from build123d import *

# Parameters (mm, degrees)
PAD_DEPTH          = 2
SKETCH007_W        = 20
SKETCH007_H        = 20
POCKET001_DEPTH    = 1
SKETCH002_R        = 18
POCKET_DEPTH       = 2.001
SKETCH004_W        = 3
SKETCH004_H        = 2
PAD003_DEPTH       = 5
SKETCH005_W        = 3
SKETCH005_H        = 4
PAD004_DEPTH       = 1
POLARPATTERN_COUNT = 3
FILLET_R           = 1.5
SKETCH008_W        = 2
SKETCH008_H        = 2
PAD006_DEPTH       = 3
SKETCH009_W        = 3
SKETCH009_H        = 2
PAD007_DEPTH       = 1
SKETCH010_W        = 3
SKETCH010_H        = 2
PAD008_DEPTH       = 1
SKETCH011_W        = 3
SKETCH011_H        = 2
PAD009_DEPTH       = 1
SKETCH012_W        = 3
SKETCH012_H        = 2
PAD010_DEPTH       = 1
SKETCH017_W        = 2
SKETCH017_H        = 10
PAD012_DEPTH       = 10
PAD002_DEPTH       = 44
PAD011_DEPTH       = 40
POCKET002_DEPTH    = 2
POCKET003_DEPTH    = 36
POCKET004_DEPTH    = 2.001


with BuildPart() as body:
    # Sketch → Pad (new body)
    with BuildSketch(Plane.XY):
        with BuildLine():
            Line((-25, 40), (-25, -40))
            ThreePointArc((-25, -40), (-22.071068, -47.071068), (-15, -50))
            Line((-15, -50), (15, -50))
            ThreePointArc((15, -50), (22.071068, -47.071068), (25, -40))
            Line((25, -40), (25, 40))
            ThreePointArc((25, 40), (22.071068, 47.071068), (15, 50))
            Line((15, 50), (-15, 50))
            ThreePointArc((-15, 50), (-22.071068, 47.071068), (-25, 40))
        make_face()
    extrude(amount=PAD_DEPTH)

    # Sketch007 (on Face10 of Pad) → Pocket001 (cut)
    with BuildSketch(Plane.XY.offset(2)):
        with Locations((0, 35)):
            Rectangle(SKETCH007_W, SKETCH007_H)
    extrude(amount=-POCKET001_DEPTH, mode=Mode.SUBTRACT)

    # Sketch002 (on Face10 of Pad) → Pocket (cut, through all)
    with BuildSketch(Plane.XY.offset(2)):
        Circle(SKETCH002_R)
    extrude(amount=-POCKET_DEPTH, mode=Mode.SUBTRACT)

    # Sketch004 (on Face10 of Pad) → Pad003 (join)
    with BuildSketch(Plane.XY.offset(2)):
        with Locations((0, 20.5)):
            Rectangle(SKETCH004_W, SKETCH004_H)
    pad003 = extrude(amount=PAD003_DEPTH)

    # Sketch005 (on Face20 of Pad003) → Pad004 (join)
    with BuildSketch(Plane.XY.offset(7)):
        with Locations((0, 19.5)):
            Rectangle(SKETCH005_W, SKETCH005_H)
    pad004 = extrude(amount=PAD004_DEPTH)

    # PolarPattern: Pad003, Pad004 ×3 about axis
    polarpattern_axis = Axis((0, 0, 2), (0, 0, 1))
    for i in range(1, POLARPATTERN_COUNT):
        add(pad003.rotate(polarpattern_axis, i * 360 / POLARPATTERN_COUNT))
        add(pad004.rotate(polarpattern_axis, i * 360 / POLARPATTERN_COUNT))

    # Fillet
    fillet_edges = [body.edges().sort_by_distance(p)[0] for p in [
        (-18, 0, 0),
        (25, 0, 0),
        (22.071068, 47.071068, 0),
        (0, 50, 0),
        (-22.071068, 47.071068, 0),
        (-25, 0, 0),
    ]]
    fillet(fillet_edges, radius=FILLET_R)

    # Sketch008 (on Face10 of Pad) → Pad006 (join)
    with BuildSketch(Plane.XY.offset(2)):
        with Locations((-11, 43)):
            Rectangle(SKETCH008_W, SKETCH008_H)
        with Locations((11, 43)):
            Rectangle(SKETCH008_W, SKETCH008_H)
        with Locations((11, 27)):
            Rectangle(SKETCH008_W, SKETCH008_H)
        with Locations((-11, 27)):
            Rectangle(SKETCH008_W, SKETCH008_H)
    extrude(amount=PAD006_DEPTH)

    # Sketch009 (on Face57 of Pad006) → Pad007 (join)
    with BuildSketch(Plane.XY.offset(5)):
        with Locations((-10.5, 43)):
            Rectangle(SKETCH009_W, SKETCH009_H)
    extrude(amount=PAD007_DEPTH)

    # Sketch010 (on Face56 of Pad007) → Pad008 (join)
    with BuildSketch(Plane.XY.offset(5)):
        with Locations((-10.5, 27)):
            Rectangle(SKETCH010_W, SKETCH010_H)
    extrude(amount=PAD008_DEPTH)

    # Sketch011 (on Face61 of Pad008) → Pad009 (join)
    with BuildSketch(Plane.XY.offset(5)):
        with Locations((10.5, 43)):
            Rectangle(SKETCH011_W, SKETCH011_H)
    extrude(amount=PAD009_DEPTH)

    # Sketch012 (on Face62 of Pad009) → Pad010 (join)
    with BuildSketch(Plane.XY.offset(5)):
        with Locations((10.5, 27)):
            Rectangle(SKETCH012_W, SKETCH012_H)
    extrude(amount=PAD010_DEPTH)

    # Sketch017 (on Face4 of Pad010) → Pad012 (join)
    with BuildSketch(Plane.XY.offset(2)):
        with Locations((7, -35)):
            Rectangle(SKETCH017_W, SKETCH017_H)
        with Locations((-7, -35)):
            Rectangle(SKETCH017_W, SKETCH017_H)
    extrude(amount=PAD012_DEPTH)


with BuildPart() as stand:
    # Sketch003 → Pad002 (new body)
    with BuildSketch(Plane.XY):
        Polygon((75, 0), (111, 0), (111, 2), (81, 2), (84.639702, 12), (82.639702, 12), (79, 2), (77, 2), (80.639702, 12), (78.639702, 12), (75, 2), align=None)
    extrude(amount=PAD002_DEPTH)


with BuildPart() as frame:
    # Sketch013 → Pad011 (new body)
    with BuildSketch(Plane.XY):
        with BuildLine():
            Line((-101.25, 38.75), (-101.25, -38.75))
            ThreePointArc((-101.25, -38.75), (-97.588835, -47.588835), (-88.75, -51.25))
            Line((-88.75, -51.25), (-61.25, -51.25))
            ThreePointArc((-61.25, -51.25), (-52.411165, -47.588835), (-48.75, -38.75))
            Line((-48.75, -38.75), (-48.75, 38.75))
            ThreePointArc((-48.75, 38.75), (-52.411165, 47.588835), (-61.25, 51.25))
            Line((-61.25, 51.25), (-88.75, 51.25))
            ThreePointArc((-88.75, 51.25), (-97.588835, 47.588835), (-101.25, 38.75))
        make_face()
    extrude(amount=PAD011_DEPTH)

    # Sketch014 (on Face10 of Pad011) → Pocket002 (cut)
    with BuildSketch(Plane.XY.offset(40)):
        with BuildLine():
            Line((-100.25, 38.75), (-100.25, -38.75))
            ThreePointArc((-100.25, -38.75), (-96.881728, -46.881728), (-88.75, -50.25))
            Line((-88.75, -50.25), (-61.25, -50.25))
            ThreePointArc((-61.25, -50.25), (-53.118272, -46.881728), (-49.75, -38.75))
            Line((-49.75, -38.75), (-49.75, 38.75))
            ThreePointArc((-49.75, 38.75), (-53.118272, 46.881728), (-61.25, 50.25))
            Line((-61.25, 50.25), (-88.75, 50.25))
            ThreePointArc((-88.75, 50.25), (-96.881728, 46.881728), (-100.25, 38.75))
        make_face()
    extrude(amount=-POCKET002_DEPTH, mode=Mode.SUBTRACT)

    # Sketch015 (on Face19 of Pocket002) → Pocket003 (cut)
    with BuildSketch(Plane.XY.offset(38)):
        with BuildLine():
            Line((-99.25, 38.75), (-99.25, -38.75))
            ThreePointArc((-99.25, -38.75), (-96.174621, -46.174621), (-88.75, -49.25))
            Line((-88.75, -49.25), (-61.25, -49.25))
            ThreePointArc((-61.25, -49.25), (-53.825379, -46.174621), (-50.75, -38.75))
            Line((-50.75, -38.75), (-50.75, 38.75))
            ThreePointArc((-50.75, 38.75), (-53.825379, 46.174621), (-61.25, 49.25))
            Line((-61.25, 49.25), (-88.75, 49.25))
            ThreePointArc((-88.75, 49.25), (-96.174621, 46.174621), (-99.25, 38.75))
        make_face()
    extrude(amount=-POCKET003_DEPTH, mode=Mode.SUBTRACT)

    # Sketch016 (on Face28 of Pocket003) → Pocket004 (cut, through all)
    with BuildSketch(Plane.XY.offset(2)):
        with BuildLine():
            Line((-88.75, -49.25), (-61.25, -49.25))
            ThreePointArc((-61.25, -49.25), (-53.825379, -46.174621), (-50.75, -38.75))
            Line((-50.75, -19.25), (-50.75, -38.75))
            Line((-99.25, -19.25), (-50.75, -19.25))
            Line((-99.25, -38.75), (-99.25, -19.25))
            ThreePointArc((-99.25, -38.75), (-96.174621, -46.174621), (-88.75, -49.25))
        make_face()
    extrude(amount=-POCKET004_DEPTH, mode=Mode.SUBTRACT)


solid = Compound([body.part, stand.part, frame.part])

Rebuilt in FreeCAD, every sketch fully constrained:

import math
import FreeCAD as App
import Part
import Sketcher
Q = App.Units.Quantity


def edges_at(feature, points):
    """Names of the edges that pass closest to the given points."""
    edges = feature.Shape.Edges
    near = lambda p: min(range(len(edges)), key=lambda i: edges[i].distToShape(Part.Vertex(*p))[0])
    return sorted({f"Edge{near(p) + 1}" for p in points})

doc = App.newDocument("Part")
body = doc.addObject("PartDesign::Body", "Body")

sketch1 = body.newObject("Sketcher::SketchObject", "Sketch")
sketch1.AttachmentSupport = (doc.getObject("XY_Plane"), [""])
sketch1.MapMode = "FlatFace"
sketch1.addGeometry(Part.LineSegment(App.Vector(-25, 40, 0), App.Vector(-25, -40, 0)), False)
sketch1.addGeometry(Part.ArcOfCircle(Part.Circle(App.Vector(-15, -40, 0), App.Vector(0, 0, 1), 10), math.radians(180), math.radians(270)), False)
sketch1.addGeometry(Part.LineSegment(App.Vector(-15, -50, 0), App.Vector(15, -50, 0)), False)
sketch1.addGeometry(Part.ArcOfCircle(Part.Circle(App.Vector(15, -40, 0), App.Vector(0, 0, 1), 10), math.radians(-90), math.radians(0)), False)
sketch1.addGeometry(Part.LineSegment(App.Vector(25, -40, 0), App.Vector(25, 40, 0)), False)
sketch1.addGeometry(Part.ArcOfCircle(Part.Circle(App.Vector(15, 40, 0), App.Vector(0, 0, 1), 10), math.radians(0), math.radians(90)), False)
sketch1.addGeometry(Part.LineSegment(App.Vector(15, 50, 0), App.Vector(-15, 50, 0)), False)
sketch1.addGeometry(Part.ArcOfCircle(Part.Circle(App.Vector(-15, 40, 0), App.Vector(0, 0, 1), 10), math.radians(90), math.radians(180)), False)
sketch1.addConstraint(Sketcher.Constraint("Tangent", 0, 2, 1, 1))
sketch1.addConstraint(Sketcher.Constraint("Tangent", 1, 2, 2, 1))
sketch1.addConstraint(Sketcher.Constraint("Tangent", 2, 2, 3, 1))
sketch1.addConstraint(Sketcher.Constraint("Tangent", 3, 2, 4, 1))
sketch1.addConstraint(Sketcher.Constraint("Tangent", 4, 2, 5, 1))
sketch1.addConstraint(Sketcher.Constraint("Tangent", 5, 2, 6, 1))
sketch1.addConstraint(Sketcher.Constraint("Tangent", 6, 2, 7, 1))
sketch1.addConstraint(Sketcher.Constraint("Tangent", 7, 2, 0, 1))
sketch1.addConstraint(Sketcher.Constraint("Vertical", 0))
sketch1.addConstraint(Sketcher.Constraint("Horizontal", 2))
sketch1.addConstraint(Sketcher.Constraint("Vertical", 4))
sketch1.addConstraint(Sketcher.Constraint("Horizontal", 6))
sketch1.addConstraint(Sketcher.Constraint("Equal", 1, 3))
sketch1.addConstraint(Sketcher.Constraint("Equal", 3, 5))
sketch1.addConstraint(Sketcher.Constraint("Equal", 5, 7))
sketch1.addConstraint(Sketcher.Constraint("Symmetric", 1, 3, 5, 3, -1, 1))
sketch1.addConstraint(Sketcher.Constraint("Radius", 1, Q("9.999999 mm")))
sketch1.addConstraint(Sketcher.Constraint("DistanceX", 2, 1, 2, 2, Q("30 mm")))
sketch1.addConstraint(Sketcher.Constraint("DistanceY", 0, 2, 0, 1, Q("80 mm")))
pad1 = body.newObject("PartDesign::Pad", "Pad")
pad1.Profile = sketch1
pad1.Length = 2

sketch2 = body.newObject("Sketcher::SketchObject", "Sketch001")
sketch2.AttachmentSupport = (doc.getObject("XY_Plane"), [""])
sketch2.MapMode = "FlatFace"
sketch2.AttachmentOffset = App.Placement(App.Vector(0, 0, 2), App.Rotation())
sketch2.addGeometry(Part.LineSegment(App.Vector(-10, 45, 0), App.Vector(-10, 25, 0)), False)
sketch2.addGeometry(Part.LineSegment(App.Vector(-10, 25, 0), App.Vector(10, 25, 0)), False)
sketch2.addGeometry(Part.LineSegment(App.Vector(10, 25, 0), App.Vector(10, 45, 0)), False)
sketch2.addGeometry(Part.LineSegment(App.Vector(10, 45, 0), App.Vector(-10, 45, 0)), False)
sketch2.addConstraint(Sketcher.Constraint("Coincident", 0, 2, 1, 1))
sketch2.addConstraint(Sketcher.Constraint("Coincident", 1, 2, 2, 1))
sketch2.addConstraint(Sketcher.Constraint("Coincident", 2, 2, 3, 1))
sketch2.addConstraint(Sketcher.Constraint("Coincident", 3, 2, 0, 1))
sketch2.addConstraint(Sketcher.Constraint("Vertical", 0))
sketch2.addConstraint(Sketcher.Constraint("Horizontal", 1))
sketch2.addConstraint(Sketcher.Constraint("Vertical", 2))
sketch2.addConstraint(Sketcher.Constraint("Horizontal", 3))
sketch2.addConstraint(Sketcher.Constraint("Equal", 3, 0))
sketch2.addConstraint(Sketcher.Constraint("DistanceX", 1, 1, 1, 2, Q("20 mm")))
sketch2.addConstraint(Sketcher.Constraint("DistanceX", 0, 2, -1, 1, Q("10 mm")))
sketch2.addConstraint(Sketcher.Constraint("DistanceY", -1, 1, 0, 2, Q("25 mm")))
pocket1 = body.newObject("PartDesign::Pocket", "Pocket")
pocket1.Profile = sketch2
pocket1.Length = 1

sketch3 = body.newObject("Sketcher::SketchObject", "Sketch002")
sketch3.AttachmentSupport = (doc.getObject("XY_Plane"), [""])
sketch3.MapMode = "FlatFace"
sketch3.AttachmentOffset = App.Placement(App.Vector(0, 0, 2), App.Rotation())
sketch3.addGeometry(Part.Circle(App.Vector(0, 0, 0), App.Vector(0, 0, 1), 18), False)
sketch3.addConstraint(Sketcher.Constraint("Coincident", 0, 3, -1, 1))
sketch3.addConstraint(Sketcher.Constraint("Diameter", 0, Q("36 mm")))
pocket2 = body.newObject("PartDesign::Pocket", "Pocket001")
pocket2.Profile = sketch3
pocket2.Type = "ThroughAll"

sketch4 = body.newObject("Sketcher::SketchObject", "Sketch003")
sketch4.AttachmentSupport = (doc.getObject("XY_Plane"), [""])
sketch4.MapMode = "FlatFace"
sketch4.AttachmentOffset = App.Placement(App.Vector(0, 0, 2), App.Rotation())
sketch4.addGeometry(Part.LineSegment(App.Vector(-1.5, 21.5, 0), App.Vector(-1.5, 19.5, 0)), False)
sketch4.addGeometry(Part.LineSegment(App.Vector(-1.5, 19.5, 0), App.Vector(1.5, 19.5, 0)), False)
sketch4.addGeometry(Part.LineSegment(App.Vector(1.5, 19.5, 0), App.Vector(1.5, 21.5, 0)), False)
sketch4.addGeometry(Part.LineSegment(App.Vector(1.5, 21.5, 0), App.Vector(-1.5, 21.5, 0)), False)
sketch4.addConstraint(Sketcher.Constraint("Coincident", 0, 2, 1, 1))
sketch4.addConstraint(Sketcher.Constraint("Coincident", 1, 2, 2, 1))
sketch4.addConstraint(Sketcher.Constraint("Coincident", 2, 2, 3, 1))
sketch4.addConstraint(Sketcher.Constraint("Coincident", 3, 2, 0, 1))
sketch4.addConstraint(Sketcher.Constraint("Vertical", 0))
sketch4.addConstraint(Sketcher.Constraint("Horizontal", 1))
sketch4.addConstraint(Sketcher.Constraint("Vertical", 2))
sketch4.addConstraint(Sketcher.Constraint("Horizontal", 3))
sketch4.addConstraint(Sketcher.Constraint("DistanceX", 1, 1, 1, 2, Q("3 mm")))
sketch4.addConstraint(Sketcher.Constraint("DistanceY", 0, 2, 0, 1, Q("2 mm")))
sketch4.addConstraint(Sketcher.Constraint("DistanceX", 0, 2, -1, 1, Q("1.5 mm")))
sketch4.addConstraint(Sketcher.Constraint("DistanceY", -1, 1, 0, 2, Q("19.5 mm")))
pad2 = body.newObject("PartDesign::Pad", "Pad001")
pad2.Profile = sketch4
pad2.Length = 5

sketch5 = body.newObject("Sketcher::SketchObject", "Sketch004")
sketch5.AttachmentSupport = (doc.getObject("XY_Plane"), [""])
sketch5.MapMode = "FlatFace"
sketch5.AttachmentOffset = App.Placement(App.Vector(0, 0, 7), App.Rotation())
sketch5.addGeometry(Part.LineSegment(App.Vector(-1.5, 21.5, 0), App.Vector(-1.5, 17.5, 0)), False)
sketch5.addGeometry(Part.LineSegment(App.Vector(-1.5, 17.5, 0), App.Vector(1.5, 17.5, 0)), False)
sketch5.addGeometry(Part.LineSegment(App.Vector(1.5, 17.5, 0), App.Vector(1.5, 21.5, 0)), False)
sketch5.addGeometry(Part.LineSegment(App.Vector(1.5, 21.5, 0), App.Vector(-1.5, 21.5, 0)), False)
sketch5.addConstraint(Sketcher.Constraint("Coincident", 0, 2, 1, 1))
sketch5.addConstraint(Sketcher.Constraint("Coincident", 1, 2, 2, 1))
sketch5.addConstraint(Sketcher.Constraint("Coincident", 2, 2, 3, 1))
sketch5.addConstraint(Sketcher.Constraint("Coincident", 3, 2, 0, 1))
sketch5.addConstraint(Sketcher.Constraint("Vertical", 0))
sketch5.addConstraint(Sketcher.Constraint("Horizontal", 1))
sketch5.addConstraint(Sketcher.Constraint("Vertical", 2))
sketch5.addConstraint(Sketcher.Constraint("Horizontal", 3))
sketch5.addConstraint(Sketcher.Constraint("DistanceX", 1, 1, 1, 2, Q("3 mm")))
sketch5.addConstraint(Sketcher.Constraint("DistanceY", 0, 2, 0, 1, Q("4 mm")))
sketch5.addConstraint(Sketcher.Constraint("DistanceX", 0, 2, -1, 1, Q("1.5 mm")))
sketch5.addConstraint(Sketcher.Constraint("DistanceY", -1, 1, 0, 2, Q("17.5 mm")))
pad3 = body.newObject("PartDesign::Pad", "Pad002")
pad3.Profile = sketch5
pad3.Length = 1
doc.recompute()

polarpattern = body.newObject("PartDesign::PolarPattern", "PolarPattern")
polarpattern.Originals = [pad2, pad3]
polarpattern.Axis = (doc.getObject("Z_Axis"), [""])
polarpattern.Angle = 360
polarpattern.Occurrences = 3
body.Tip = polarpattern
doc.recompute()

fillet = body.newObject("PartDesign::Fillet", "Fillet")
fillet.Base = (polarpattern, edges_at(polarpattern, [
    (-18, 0, 0),
    (25, 0, 0),
    (22.071, 47.071, 0),
    (0, 50, 0),
    (-22.071, 47.071, 0),
    (-25, 0, 0),
]))
fillet.Radius = 1.5

sketch6 = body.newObject("Sketcher::SketchObject", "Sketch005")
sketch6.AttachmentSupport = (doc.getObject("XY_Plane"), [""])
sketch6.MapMode = "FlatFace"
sketch6.AttachmentOffset = App.Placement(App.Vector(0, 0, 2), App.Rotation())
sketch6.addGeometry(Part.LineSegment(App.Vector(-12, 44, 0), App.Vector(-12, 42, 0)), False)
sketch6.addGeometry(Part.LineSegment(App.Vector(-12, 42, 0), App.Vector(-10, 42, 0)), False)
sketch6.addGeometry(Part.LineSegment(App.Vector(-10, 42, 0), App.Vector(-10, 44, 0)), False)
sketch6.addGeometry(Part.LineSegment(App.Vector(-10, 44, 0), App.Vector(-12, 44, 0)), False)
sketch6.addGeometry(Part.LineSegment(App.Vector(10, 44, 0), App.Vector(10, 42, 0)), False)
sketch6.addGeometry(Part.LineSegment(App.Vector(10, 42, 0), App.Vector(12, 42, 0)), False)
sketch6.addGeometry(Part.LineSegment(App.Vector(12, 42, 0), App.Vector(12, 44, 0)), False)
sketch6.addGeometry(Part.LineSegment(App.Vector(12, 44, 0), App.Vector(10, 44, 0)), False)
sketch6.addGeometry(Part.LineSegment(App.Vector(10, 28, 0), App.Vector(10, 26, 0)), False)
sketch6.addGeometry(Part.LineSegment(App.Vector(10, 26, 0), App.Vector(12, 26, 0)), False)
sketch6.addGeometry(Part.LineSegment(App.Vector(12, 26, 0), App.Vector(12, 28, 0)), False)
sketch6.addGeometry(Part.LineSegment(App.Vector(12, 28, 0), App.Vector(10, 28, 0)), False)
sketch6.addGeometry(Part.LineSegment(App.Vector(-12, 28, 0), App.Vector(-12, 26, 0)), False)
sketch6.addGeometry(Part.LineSegment(App.Vector(-12, 26, 0), App.Vector(-10, 26, 0)), False)
sketch6.addGeometry(Part.LineSegment(App.Vector(-10, 26, 0), App.Vector(-10, 28, 0)), False)
sketch6.addGeometry(Part.LineSegment(App.Vector(-10, 28, 0), App.Vector(-12, 28, 0)), False)
sketch6.addConstraint(Sketcher.Constraint("Coincident", 0, 2, 1, 1))
sketch6.addConstraint(Sketcher.Constraint("Coincident", 1, 2, 2, 1))
sketch6.addConstraint(Sketcher.Constraint("Coincident", 2, 2, 3, 1))
sketch6.addConstraint(Sketcher.Constraint("Coincident", 3, 2, 0, 1))
sketch6.addConstraint(Sketcher.Constraint("Coincident", 4, 2, 5, 1))
sketch6.addConstraint(Sketcher.Constraint("Coincident", 5, 2, 6, 1))
sketch6.addConstraint(Sketcher.Constraint("Coincident", 6, 2, 7, 1))
sketch6.addConstraint(Sketcher.Constraint("Coincident", 7, 2, 4, 1))
sketch6.addConstraint(Sketcher.Constraint("Coincident", 8, 2, 9, 1))
sketch6.addConstraint(Sketcher.Constraint("Coincident", 9, 2, 10, 1))
sketch6.addConstraint(Sketcher.Constraint("Coincident", 10, 2, 11, 1))
sketch6.addConstraint(Sketcher.Constraint("Coincident", 11, 2, 8, 1))
sketch6.addConstraint(Sketcher.Constraint("Coincident", 12, 2, 13, 1))
sketch6.addConstraint(Sketcher.Constraint("Coincident", 13, 2, 14, 1))
sketch6.addConstraint(Sketcher.Constraint("Coincident", 14, 2, 15, 1))
sketch6.addConstraint(Sketcher.Constraint("Coincident", 15, 2, 12, 1))
sketch6.addConstraint(Sketcher.Constraint("Vertical", 0))
sketch6.addConstraint(Sketcher.Constraint("Horizontal", 1))
sketch6.addConstraint(Sketcher.Constraint("Vertical", 2))
sketch6.addConstraint(Sketcher.Constraint("Horizontal", 3))
sketch6.addConstraint(Sketcher.Constraint("Vertical", 4))
sketch6.addConstraint(Sketcher.Constraint("Horizontal", 5))
sketch6.addConstraint(Sketcher.Constraint("Vertical", 6))
sketch6.addConstraint(Sketcher.Constraint("Horizontal", 7))
sketch6.addConstraint(Sketcher.Constraint("Vertical", 8))
sketch6.addConstraint(Sketcher.Constraint("Horizontal", 9))
sketch6.addConstraint(Sketcher.Constraint("Vertical", 10))
sketch6.addConstraint(Sketcher.Constraint("Horizontal", 11))
sketch6.addConstraint(Sketcher.Constraint("Vertical", 12))
sketch6.addConstraint(Sketcher.Constraint("Horizontal", 13))
sketch6.addConstraint(Sketcher.Constraint("Vertical", 14))
sketch6.addConstraint(Sketcher.Constraint("Horizontal", 15))
sketch6.addConstraint(Sketcher.Constraint("Symmetric", 1, 2, 4, 2, -2))
sketch6.addConstraint(Sketcher.Constraint("Symmetric", 3, 2, 6, 2, -2))
sketch6.addConstraint(Sketcher.Constraint("Symmetric", 9, 2, 12, 2, -2))
sketch6.addConstraint(Sketcher.Constraint("Symmetric", 11, 2, 14, 2, -2))
sketch6.addConstraint(Sketcher.Constraint("Vertical", 7, 2, 8, 2))
sketch6.addConstraint(Sketcher.Constraint("Vertical", 6, 2, 9, 2))
sketch6.addConstraint(Sketcher.Constraint("Equal", 15, 0))
sketch6.addConstraint(Sketcher.Constraint("Equal", 6, 8))
sketch6.addConstraint(Sketcher.Constraint("DistanceX", 1, 1, 1, 2, Q("2 mm")))
sketch6.addConstraint(Sketcher.Constraint("DistanceX", 0, 2, -1, 1, Q("12 mm")))
sketch6.addConstraint(Sketcher.Constraint("DistanceY", -1, 1, 0, 2, Q("42 mm")))
sketch6.addConstraint(Sketcher.Constraint("DistanceY", -1, 1, 8, 2, Q("26 mm")))
pad4 = body.newObject("PartDesign::Pad", "Pad003")
pad4.Profile = sketch6
pad4.Length = 3

sketch7 = body.newObject("Sketcher::SketchObject", "Sketch006")
sketch7.AttachmentSupport = (doc.getObject("XY_Plane"), [""])
sketch7.MapMode = "FlatFace"
sketch7.AttachmentOffset = App.Placement(App.Vector(0, 0, 5), App.Rotation())
sketch7.addGeometry(Part.LineSegment(App.Vector(-12, 44, 0), App.Vector(-12, 42, 0)), False)
sketch7.addGeometry(Part.LineSegment(App.Vector(-12, 42, 0), App.Vector(-9, 42, 0)), False)
sketch7.addGeometry(Part.LineSegment(App.Vector(-9, 42, 0), App.Vector(-9, 44, 0)), False)
sketch7.addGeometry(Part.LineSegment(App.Vector(-9, 44, 0), App.Vector(-12, 44, 0)), False)
sketch7.addConstraint(Sketcher.Constraint("Coincident", 0, 2, 1, 1))
sketch7.addConstraint(Sketcher.Constraint("Coincident", 1, 2, 2, 1))
sketch7.addConstraint(Sketcher.Constraint("Coincident", 2, 2, 3, 1))
sketch7.addConstraint(Sketcher.Constraint("Coincident", 3, 2, 0, 1))
sketch7.addConstraint(Sketcher.Constraint("Vertical", 0))
sketch7.addConstraint(Sketcher.Constraint("Horizontal", 1))
sketch7.addConstraint(Sketcher.Constraint("Vertical", 2))
sketch7.addConstraint(Sketcher.Constraint("Horizontal", 3))
sketch7.addConstraint(Sketcher.Constraint("DistanceX", 1, 1, 1, 2, Q("3 mm")))
sketch7.addConstraint(Sketcher.Constraint("DistanceY", 0, 2, 0, 1, Q("2 mm")))
sketch7.addConstraint(Sketcher.Constraint("DistanceX", 0, 2, -1, 1, Q("12 mm")))
sketch7.addConstraint(Sketcher.Constraint("DistanceY", -1, 1, 0, 2, Q("42 mm")))
pad5 = body.newObject("PartDesign::Pad", "Pad004")
pad5.Profile = sketch7
pad5.Length = 1

sketch8 = body.newObject("Sketcher::SketchObject", "Sketch007")
sketch8.AttachmentSupport = (doc.getObject("XY_Plane"), [""])
sketch8.MapMode = "FlatFace"
sketch8.AttachmentOffset = App.Placement(App.Vector(0, 0, 5), App.Rotation())
sketch8.addGeometry(Part.LineSegment(App.Vector(-12, 28, 0), App.Vector(-12, 26, 0)), False)
sketch8.addGeometry(Part.LineSegment(App.Vector(-12, 26, 0), App.Vector(-9, 26, 0)), False)
sketch8.addGeometry(Part.LineSegment(App.Vector(-9, 26, 0), App.Vector(-9, 28, 0)), False)
sketch8.addGeometry(Part.LineSegment(App.Vector(-9, 28, 0), App.Vector(-12, 28, 0)), False)
sketch8.addConstraint(Sketcher.Constraint("Coincident", 0, 2, 1, 1))
sketch8.addConstraint(Sketcher.Constraint("Coincident", 1, 2, 2, 1))
sketch8.addConstraint(Sketcher.Constraint("Coincident", 2, 2, 3, 1))
sketch8.addConstraint(Sketcher.Constraint("Coincident", 3, 2, 0, 1))
sketch8.addConstraint(Sketcher.Constraint("Vertical", 0))
sketch8.addConstraint(Sketcher.Constraint("Horizontal", 1))
sketch8.addConstraint(Sketcher.Constraint("Vertical", 2))
sketch8.addConstraint(Sketcher.Constraint("Horizontal", 3))
sketch8.addConstraint(Sketcher.Constraint("DistanceX", 1, 1, 1, 2, Q("3 mm")))
sketch8.addConstraint(Sketcher.Constraint("DistanceY", 0, 2, 0, 1, Q("2 mm")))
sketch8.addConstraint(Sketcher.Constraint("DistanceX", 0, 2, -1, 1, Q("12 mm")))
sketch8.addConstraint(Sketcher.Constraint("DistanceY", -1, 1, 0, 2, Q("26 mm")))
pad6 = body.newObject("PartDesign::Pad", "Pad005")
pad6.Profile = sketch8
pad6.Length = 1

sketch9 = body.newObject("Sketcher::SketchObject", "Sketch008")
sketch9.AttachmentSupport = (doc.getObject("XY_Plane"), [""])
sketch9.MapMode = "FlatFace"
sketch9.AttachmentOffset = App.Placement(App.Vector(0, 0, 5), App.Rotation())
sketch9.addGeometry(Part.LineSegment(App.Vector(9, 44, 0), App.Vector(9, 42, 0)), False)
sketch9.addGeometry(Part.LineSegment(App.Vector(9, 42, 0), App.Vector(12, 42, 0)), False)
sketch9.addGeometry(Part.LineSegment(App.Vector(12, 42, 0), App.Vector(12, 44, 0)), False)
sketch9.addGeometry(Part.LineSegment(App.Vector(12, 44, 0), App.Vector(9, 44, 0)), False)
sketch9.addConstraint(Sketcher.Constraint("Coincident", 0, 2, 1, 1))
sketch9.addConstraint(Sketcher.Constraint("Coincident", 1, 2, 2, 1))
sketch9.addConstraint(Sketcher.Constraint("Coincident", 2, 2, 3, 1))
sketch9.addConstraint(Sketcher.Constraint("Coincident", 3, 2, 0, 1))
sketch9.addConstraint(Sketcher.Constraint("Vertical", 0))
sketch9.addConstraint(Sketcher.Constraint("Horizontal", 1))
sketch9.addConstraint(Sketcher.Constraint("Vertical", 2))
sketch9.addConstraint(Sketcher.Constraint("Horizontal", 3))
sketch9.addConstraint(Sketcher.Constraint("DistanceX", 1, 1, 1, 2, Q("3 mm")))
sketch9.addConstraint(Sketcher.Constraint("DistanceY", 0, 2, 0, 1, Q("2 mm")))
sketch9.addConstraint(Sketcher.Constraint("DistanceX", -1, 1, 0, 2, Q("9 mm")))
sketch9.addConstraint(Sketcher.Constraint("DistanceY", -1, 1, 0, 2, Q("42 mm")))
pad7 = body.newObject("PartDesign::Pad", "Pad006")
pad7.Profile = sketch9
pad7.Length = 1

sketch10 = body.newObject("Sketcher::SketchObject", "Sketch009")
sketch10.AttachmentSupport = (doc.getObject("XY_Plane"), [""])
sketch10.MapMode = "FlatFace"
sketch10.AttachmentOffset = App.Placement(App.Vector(0, 0, 5), App.Rotation())
sketch10.addGeometry(Part.LineSegment(App.Vector(9, 28, 0), App.Vector(9, 26, 0)), False)
sketch10.addGeometry(Part.LineSegment(App.Vector(9, 26, 0), App.Vector(12, 26, 0)), False)
sketch10.addGeometry(Part.LineSegment(App.Vector(12, 26, 0), App.Vector(12, 28, 0)), False)
sketch10.addGeometry(Part.LineSegment(App.Vector(12, 28, 0), App.Vector(9, 28, 0)), False)
sketch10.addConstraint(Sketcher.Constraint("Coincident", 0, 2, 1, 1))
sketch10.addConstraint(Sketcher.Constraint("Coincident", 1, 2, 2, 1))
sketch10.addConstraint(Sketcher.Constraint("Coincident", 2, 2, 3, 1))
sketch10.addConstraint(Sketcher.Constraint("Coincident", 3, 2, 0, 1))
sketch10.addConstraint(Sketcher.Constraint("Vertical", 0))
sketch10.addConstraint(Sketcher.Constraint("Horizontal", 1))
sketch10.addConstraint(Sketcher.Constraint("Vertical", 2))
sketch10.addConstraint(Sketcher.Constraint("Horizontal", 3))
sketch10.addConstraint(Sketcher.Constraint("DistanceX", 1, 1, 1, 2, Q("3 mm")))
sketch10.addConstraint(Sketcher.Constraint("DistanceY", 0, 2, 0, 1, Q("2 mm")))
sketch10.addConstraint(Sketcher.Constraint("DistanceX", -1, 1, 0, 2, Q("9 mm")))
sketch10.addConstraint(Sketcher.Constraint("DistanceY", -1, 1, 0, 2, Q("26 mm")))
pad8 = body.newObject("PartDesign::Pad", "Pad007")
pad8.Profile = sketch10
pad8.Length = 1

sketch11 = body.newObject("Sketcher::SketchObject", "Sketch010")
sketch11.AttachmentSupport = (doc.getObject("XY_Plane"), [""])
sketch11.MapMode = "FlatFace"
sketch11.AttachmentOffset = App.Placement(App.Vector(0, 0, 2), App.Rotation())
sketch11.addGeometry(Part.LineSegment(App.Vector(6, -30, 0), App.Vector(6, -40, 0)), False)
sketch11.addGeometry(Part.LineSegment(App.Vector(6, -40, 0), App.Vector(8, -40, 0)), False)
sketch11.addGeometry(Part.LineSegment(App.Vector(8, -40, 0), App.Vector(8, -30, 0)), False)
sketch11.addGeometry(Part.LineSegment(App.Vector(8, -30, 0), App.Vector(6, -30, 0)), False)
sketch11.addGeometry(Part.LineSegment(App.Vector(-8, -30, 0), App.Vector(-8, -40, 0)), False)
sketch11.addGeometry(Part.LineSegment(App.Vector(-8, -40, 0), App.Vector(-6, -40, 0)), False)
sketch11.addGeometry(Part.LineSegment(App.Vector(-6, -40, 0), App.Vector(-6, -30, 0)), False)
sketch11.addGeometry(Part.LineSegment(App.Vector(-6, -30, 0), App.Vector(-8, -30, 0)), False)
sketch11.addConstraint(Sketcher.Constraint("Coincident", 0, 2, 1, 1))
sketch11.addConstraint(Sketcher.Constraint("Coincident", 1, 2, 2, 1))
sketch11.addConstraint(Sketcher.Constraint("Coincident", 2, 2, 3, 1))
sketch11.addConstraint(Sketcher.Constraint("Coincident", 3, 2, 0, 1))
sketch11.addConstraint(Sketcher.Constraint("Coincident", 4, 2, 5, 1))
sketch11.addConstraint(Sketcher.Constraint("Coincident", 5, 2, 6, 1))
sketch11.addConstraint(Sketcher.Constraint("Coincident", 6, 2, 7, 1))
sketch11.addConstraint(Sketcher.Constraint("Coincident", 7, 2, 4, 1))
sketch11.addConstraint(Sketcher.Constraint("Vertical", 0))
sketch11.addConstraint(Sketcher.Constraint("Horizontal", 1))
sketch11.addConstraint(Sketcher.Constraint("Vertical", 2))
sketch11.addConstraint(Sketcher.Constraint("Horizontal", 3))
sketch11.addConstraint(Sketcher.Constraint("Vertical", 4))
sketch11.addConstraint(Sketcher.Constraint("Horizontal", 5))
sketch11.addConstraint(Sketcher.Constraint("Vertical", 6))
sketch11.addConstraint(Sketcher.Constraint("Horizontal", 7))
sketch11.addConstraint(Sketcher.Constraint("Symmetric", 1, 2, 4, 2, -2))
sketch11.addConstraint(Sketcher.Constraint("Symmetric", 3, 2, 6, 2, -2))
sketch11.addConstraint(Sketcher.Constraint("DistanceX", 1, 1, 1, 2, Q("2 mm")))
sketch11.addConstraint(Sketcher.Constraint("DistanceY", 0, 2, 0, 1, Q("10 mm")))
sketch11.addConstraint(Sketcher.Constraint("DistanceX", -1, 1, 0, 2, Q("6 mm")))
sketch11.addConstraint(Sketcher.Constraint("DistanceY", 0, 2, -1, 1, Q("40 mm")))
pad9 = body.newObject("PartDesign::Pad", "Pad008")
pad9.Profile = sketch11
pad9.Length = 10
body2 = doc.addObject("PartDesign::Body", "Body001")

sketch12 = body2.newObject("Sketcher::SketchObject", "Sketch011")
sketch12.AttachmentSupport = (doc.getObject("XY_Plane001"), [""])
sketch12.MapMode = "FlatFace"
sketch12.addGeometry(Part.LineSegment(App.Vector(75, 0, 0), App.Vector(111, 0, 0)), False)
sketch12.addGeometry(Part.LineSegment(App.Vector(111, 0, 0), App.Vector(111, 2, 0)), False)
sketch12.addGeometry(Part.LineSegment(App.Vector(111, 2, 0), App.Vector(81, 2, 0)), False)
sketch12.addGeometry(Part.LineSegment(App.Vector(81, 2, 0), App.Vector(84.6, 12, 0)), False)
sketch12.addGeometry(Part.LineSegment(App.Vector(84.6, 12, 0), App.Vector(82.6, 12, 0)), False)
sketch12.addGeometry(Part.LineSegment(App.Vector(82.6, 12, 0), App.Vector(79, 2, 0)), False)
sketch12.addGeometry(Part.LineSegment(App.Vector(79, 2, 0), App.Vector(77, 2, 0)), False)
sketch12.addGeometry(Part.LineSegment(App.Vector(77, 2, 0), App.Vector(80.6, 12, 0)), False)
sketch12.addGeometry(Part.LineSegment(App.Vector(80.6, 12, 0), App.Vector(78.6, 12, 0)), False)
sketch12.addGeometry(Part.LineSegment(App.Vector(78.6, 12, 0), App.Vector(75, 2, 0)), False)
sketch12.addGeometry(Part.LineSegment(App.Vector(75, 2, 0), App.Vector(75, 0, 0)), False)
sketch12.addConstraint(Sketcher.Constraint("Coincident", 0, 2, 1, 1))
sketch12.addConstraint(Sketcher.Constraint("Coincident", 1, 2, 2, 1))
sketch12.addConstraint(Sketcher.Constraint("Coincident", 2, 2, 3, 1))
sketch12.addConstraint(Sketcher.Constraint("Coincident", 3, 2, 4, 1))
sketch12.addConstraint(Sketcher.Constraint("Coincident", 4, 2, 5, 1))
sketch12.addConstraint(Sketcher.Constraint("Coincident", 5, 2, 6, 1))
sketch12.addConstraint(Sketcher.Constraint("Coincident", 6, 2, 7, 1))
sketch12.addConstraint(Sketcher.Constraint("Coincident", 7, 2, 8, 1))
sketch12.addConstraint(Sketcher.Constraint("Coincident", 8, 2, 9, 1))
sketch12.addConstraint(Sketcher.Constraint("Coincident", 9, 2, 10, 1))
sketch12.addConstraint(Sketcher.Constraint("Coincident", 10, 2, 0, 1))
sketch12.addConstraint(Sketcher.Constraint("Horizontal", 0))
sketch12.addConstraint(Sketcher.Constraint("Vertical", 1))
sketch12.addConstraint(Sketcher.Constraint("Horizontal", 2))
sketch12.addConstraint(Sketcher.Constraint("Horizontal", 4))
sketch12.addConstraint(Sketcher.Constraint("Horizontal", 6))
sketch12.addConstraint(Sketcher.Constraint("Horizontal", 8))
sketch12.addConstraint(Sketcher.Constraint("Vertical", 10))
sketch12.addConstraint(Sketcher.Constraint("PointOnObject", 0, 2, -1))
sketch12.addConstraint(Sketcher.Constraint("Parallel", 3, 5))
sketch12.addConstraint(Sketcher.Constraint("Parallel", 5, 7))
sketch12.addConstraint(Sketcher.Constraint("Parallel", 7, 9))
sketch12.addConstraint(Sketcher.Constraint("Horizontal", 2, 2, 5, 2))
sketch12.addConstraint(Sketcher.Constraint("Horizontal", 4, 2, 7, 2))
sketch12.addConstraint(Sketcher.Constraint("Horizontal", 6, 2, 9, 2))
sketch12.addConstraint(Sketcher.Constraint("Equal", 4, 6))
sketch12.addConstraint(Sketcher.Constraint("Equal", 6, 8))
sketch12.addConstraint(Sketcher.Constraint("Equal", 8, 1))
sketch12.addConstraint(Sketcher.Constraint("DistanceX", 0, 1, 0, 2, Q("36 mm")))
sketch12.addConstraint(Sketcher.Constraint("DistanceX", 2, 2, 2, 1, Q("30 mm")))
sketch12.addConstraint(Sketcher.Constraint("Angle", 3, Q("70.000002 deg")))
sketch12.addConstraint(Sketcher.Constraint("DistanceX", -1, 1, 0, 2, Q("111 mm")))
sketch12.addConstraint(Sketcher.Constraint("DistanceY", -1, 1, 3, 2, Q("12 mm")))
pad10 = body2.newObject("PartDesign::Pad", "Pad009")
pad10.Profile = sketch12
pad10.Length = 44
body3 = doc.addObject("PartDesign::Body", "Body002")

sketch13 = body3.newObject("Sketcher::SketchObject", "Sketch012")
sketch13.AttachmentSupport = (doc.getObject("XY_Plane002"), [""])
sketch13.MapMode = "FlatFace"
sketch13.addGeometry(Part.LineSegment(App.Vector(-101, 39, 0), App.Vector(-101, -39, 0)), False)
sketch13.addGeometry(Part.ArcOfCircle(Part.Circle(App.Vector(-89, -39, 0), App.Vector(0, 0, 1), 12), math.radians(180), math.radians(270)), False)
sketch13.addGeometry(Part.LineSegment(App.Vector(-89, -51, 0), App.Vector(-61, -51, 0)), False)
sketch13.addGeometry(Part.ArcOfCircle(Part.Circle(App.Vector(-61, -39, 0), App.Vector(0, 0, 1), 12), math.radians(-90), math.radians(0)), False)
sketch13.addGeometry(Part.LineSegment(App.Vector(-49, -39, 0), App.Vector(-49, 39, 0)), False)
sketch13.addGeometry(Part.ArcOfCircle(Part.Circle(App.Vector(-61, 39, 0), App.Vector(0, 0, 1), 12), math.radians(0), math.radians(90)), False)
sketch13.addGeometry(Part.LineSegment(App.Vector(-61, 51, 0), App.Vector(-89, 51, 0)), False)
sketch13.addGeometry(Part.ArcOfCircle(Part.Circle(App.Vector(-89, 39, 0), App.Vector(0, 0, 1), 12), math.radians(90), math.radians(180)), False)
sketch13.addConstraint(Sketcher.Constraint("Tangent", 0, 2, 1, 1))
sketch13.addConstraint(Sketcher.Constraint("Tangent", 1, 2, 2, 1))
sketch13.addConstraint(Sketcher.Constraint("Tangent", 2, 2, 3, 1))
sketch13.addConstraint(Sketcher.Constraint("Tangent", 3, 2, 4, 1))
sketch13.addConstraint(Sketcher.Constraint("Tangent", 4, 2, 5, 1))
sketch13.addConstraint(Sketcher.Constraint("Tangent", 5, 2, 6, 1))
sketch13.addConstraint(Sketcher.Constraint("Tangent", 6, 2, 7, 1))
sketch13.addConstraint(Sketcher.Constraint("Tangent", 7, 2, 0, 1))
sketch13.addConstraint(Sketcher.Constraint("Vertical", 0))
sketch13.addConstraint(Sketcher.Constraint("Horizontal", 2))
sketch13.addConstraint(Sketcher.Constraint("Vertical", 4))
sketch13.addConstraint(Sketcher.Constraint("Horizontal", 6))
sketch13.addConstraint(Sketcher.Constraint("Equal", 1, 3))
sketch13.addConstraint(Sketcher.Constraint("Equal", 3, 5))
sketch13.addConstraint(Sketcher.Constraint("Equal", 5, 7))
sketch13.addConstraint(Sketcher.Constraint("Radius", 1, Q("12.499999 mm")))
sketch13.addConstraint(Sketcher.Constraint("DistanceX", 2, 1, 2, 2, Q("27.5 mm")))
sketch13.addConstraint(Sketcher.Constraint("DistanceY", 0, 2, 0, 1, Q("77.5 mm")))
sketch13.addConstraint(Sketcher.Constraint("DistanceX", 1, 3, -1, 1, Q("88.750001 mm")))
sketch13.addConstraint(Sketcher.Constraint("DistanceY", 1, 3, -1, 1, Q("38.750001 mm")))
pad11 = body3.newObject("PartDesign::Pad", "Pad010")
pad11.Profile = sketch13
pad11.Length = 40

sketch14 = body3.newObject("Sketcher::SketchObject", "Sketch013")
sketch14.AttachmentSupport = (doc.getObject("XY_Plane002"), [""])
sketch14.MapMode = "FlatFace"
sketch14.AttachmentOffset = App.Placement(App.Vector(0, 0, 40), App.Rotation())
sketch14.addGeometry(Part.LineSegment(App.Vector(-100, 39, 0), App.Vector(-100, -39, 0)), False)
sketch14.addGeometry(Part.ArcOfCircle(Part.Circle(App.Vector(-89, -39, 0), App.Vector(0, 0, 1), 11), math.radians(180), math.radians(270)), False)
sketch14.addGeometry(Part.LineSegment(App.Vector(-89, -50, 0), App.Vector(-61, -50, 0)), False)
sketch14.addGeometry(Part.ArcOfCircle(Part.Circle(App.Vector(-61, -39, 0), App.Vector(0, 0, 1), 11), math.radians(-90), math.radians(0)), False)
sketch14.addGeometry(Part.LineSegment(App.Vector(-50, -39, 0), App.Vector(-50, 39, 0)), False)
sketch14.addGeometry(Part.ArcOfCircle(Part.Circle(App.Vector(-61, 39, 0), App.Vector(0, 0, 1), 11), math.radians(0), math.radians(90)), False)
sketch14.addGeometry(Part.LineSegment(App.Vector(-61, 50, 0), App.Vector(-89, 50, 0)), False)
sketch14.addGeometry(Part.ArcOfCircle(Part.Circle(App.Vector(-89, 39, 0), App.Vector(0, 0, 1), 11), math.radians(90), math.radians(180)), False)
sketch14.addConstraint(Sketcher.Constraint("Tangent", 0, 2, 1, 1))
sketch14.addConstraint(Sketcher.Constraint("Tangent", 1, 2, 2, 1))
sketch14.addConstraint(Sketcher.Constraint("Tangent", 2, 2, 3, 1))
sketch14.addConstraint(Sketcher.Constraint("Tangent", 3, 2, 4, 1))
sketch14.addConstraint(Sketcher.Constraint("Tangent", 4, 2, 5, 1))
sketch14.addConstraint(Sketcher.Constraint("Tangent", 5, 2, 6, 1))
sketch14.addConstraint(Sketcher.Constraint("Tangent", 6, 2, 7, 1))
sketch14.addConstraint(Sketcher.Constraint("Tangent", 7, 2, 0, 1))
sketch14.addConstraint(Sketcher.Constraint("Vertical", 0))
sketch14.addConstraint(Sketcher.Constraint("Horizontal", 2))
sketch14.addConstraint(Sketcher.Constraint("Vertical", 4))
sketch14.addConstraint(Sketcher.Constraint("Horizontal", 6))
sketch14.addConstraint(Sketcher.Constraint("Equal", 1, 3))
sketch14.addConstraint(Sketcher.Constraint("Equal", 3, 5))
sketch14.addConstraint(Sketcher.Constraint("Equal", 5, 7))
sketch14.addConstraint(Sketcher.Constraint("Radius", 1, Q("11.5 mm")))
sketch14.addConstraint(Sketcher.Constraint("DistanceX", 2, 1, 2, 2, Q("27.5 mm")))
sketch14.addConstraint(Sketcher.Constraint("DistanceY", 0, 2, 0, 1, Q("77.5 mm")))
sketch14.addConstraint(Sketcher.Constraint("DistanceX", 1, 3, -1, 1, Q("88.75 mm")))
sketch14.addConstraint(Sketcher.Constraint("DistanceY", 1, 3, -1, 1, Q("38.75 mm")))
pocket3 = body3.newObject("PartDesign::Pocket", "Pocket002")
pocket3.Profile = sketch14
pocket3.Length = 2

sketch15 = body3.newObject("Sketcher::SketchObject", "Sketch014")
sketch15.AttachmentSupport = (doc.getObject("XY_Plane002"), [""])
sketch15.MapMode = "FlatFace"
sketch15.AttachmentOffset = App.Placement(App.Vector(0, 0, 38), App.Rotation())
sketch15.addGeometry(Part.LineSegment(App.Vector(-99, 39, 0), App.Vector(-99, -39, 0)), False)
sketch15.addGeometry(Part.ArcOfCircle(Part.Circle(App.Vector(-89, -39, 0), App.Vector(0, 0, 1), 11), math.radians(-180), math.radians(-90)), False)
sketch15.addGeometry(Part.LineSegment(App.Vector(-89, -49, 0), App.Vector(-61, -49, 0)), False)
sketch15.addGeometry(Part.ArcOfCircle(Part.Circle(App.Vector(-61, -39, 0), App.Vector(0, 0, 1), 11), math.radians(-90), math.radians(0)), False)
sketch15.addGeometry(Part.LineSegment(App.Vector(-51, -39, 0), App.Vector(-51, 39, 0)), False)
sketch15.addGeometry(Part.ArcOfCircle(Part.Circle(App.Vector(-61, 39, 0), App.Vector(0, 0, 1), 11), math.radians(0), math.radians(90)), False)
sketch15.addGeometry(Part.LineSegment(App.Vector(-61, 49, 0), App.Vector(-89, 49, 0)), False)
sketch15.addGeometry(Part.ArcOfCircle(Part.Circle(App.Vector(-89, 39, 0), App.Vector(0, 0, 1), 11), math.radians(90), math.radians(180)), False)
sketch15.addConstraint(Sketcher.Constraint("Tangent", 0, 2, 1, 1))
sketch15.addConstraint(Sketcher.Constraint("Tangent", 1, 2, 2, 1))
sketch15.addConstraint(Sketcher.Constraint("Tangent", 2, 2, 3, 1))
sketch15.addConstraint(Sketcher.Constraint("Tangent", 3, 2, 4, 1))
sketch15.addConstraint(Sketcher.Constraint("Tangent", 4, 2, 5, 1))
sketch15.addConstraint(Sketcher.Constraint("Tangent", 5, 2, 6, 1))
sketch15.addConstraint(Sketcher.Constraint("Tangent", 6, 2, 7, 1))
sketch15.addConstraint(Sketcher.Constraint("Tangent", 7, 2, 0, 1))
sketch15.addConstraint(Sketcher.Constraint("Vertical", 0))
sketch15.addConstraint(Sketcher.Constraint("Horizontal", 2))
sketch15.addConstraint(Sketcher.Constraint("Vertical", 4))
sketch15.addConstraint(Sketcher.Constraint("Horizontal", 6))
sketch15.addConstraint(Sketcher.Constraint("Equal", 1, 3))
sketch15.addConstraint(Sketcher.Constraint("Equal", 3, 5))
sketch15.addConstraint(Sketcher.Constraint("Equal", 5, 7))
sketch15.addConstraint(Sketcher.Constraint("Radius", 1, Q("10.500001 mm")))
sketch15.addConstraint(Sketcher.Constraint("DistanceX", 2, 1, 2, 2, Q("27.5 mm")))
sketch15.addConstraint(Sketcher.Constraint("DistanceY", 0, 2, 0, 1, Q("77.5 mm")))
sketch15.addConstraint(Sketcher.Constraint("DistanceX", 1, 3, -1, 1, Q("88.749999 mm")))
sketch15.addConstraint(Sketcher.Constraint("DistanceY", 1, 3, -1, 1, Q("38.749999 mm")))
pocket4 = body3.newObject("PartDesign::Pocket", "Pocket003")
pocket4.Profile = sketch15
pocket4.Length = 36

sketch16 = body3.newObject("Sketcher::SketchObject", "Sketch015")
sketch16.AttachmentSupport = (doc.getObject("XY_Plane002"), [""])
sketch16.MapMode = "FlatFace"
sketch16.AttachmentOffset = App.Placement(App.Vector(0, 0, 2), App.Rotation())
sketch16.addGeometry(Part.LineSegment(App.Vector(-89, -49, 0), App.Vector(-61, -49, 0)), False)
sketch16.addGeometry(Part.ArcOfCircle(Part.Circle(App.Vector(-61, -39, 0), App.Vector(0, 0, 1), 11), math.radians(-90), math.radians(0)), False)
sketch16.addGeometry(Part.LineSegment(App.Vector(-51, -39, 0), App.Vector(-51, -19, 0)), False)
sketch16.addGeometry(Part.LineSegment(App.Vector(-51, -19, 0), App.Vector(-99, -19, 0)), False)
sketch16.addGeometry(Part.LineSegment(App.Vector(-99, -19, 0), App.Vector(-99, -39, 0)), False)
sketch16.addGeometry(Part.ArcOfCircle(Part.Circle(App.Vector(-89, -39, 0), App.Vector(0, 0, 1), 11), math.radians(-180), math.radians(-90)), False)
sketch16.addConstraint(Sketcher.Constraint("Tangent", 0, 2, 1, 1))
sketch16.addConstraint(Sketcher.Constraint("Tangent", 1, 2, 2, 1))
sketch16.addConstraint(Sketcher.Constraint("Coincident", 2, 2, 3, 1))
sketch16.addConstraint(Sketcher.Constraint("Coincident", 3, 2, 4, 1))
sketch16.addConstraint(Sketcher.Constraint("Tangent", 4, 2, 5, 1))
sketch16.addConstraint(Sketcher.Constraint("Tangent", 5, 2, 0, 1))
sketch16.addConstraint(Sketcher.Constraint("Horizontal", 0))
sketch16.addConstraint(Sketcher.Constraint("Vertical", 2))
sketch16.addConstraint(Sketcher.Constraint("Horizontal", 3))
sketch16.addConstraint(Sketcher.Constraint("Vertical", 4))
sketch16.addConstraint(Sketcher.Constraint("Equal", 1, 5))
sketch16.addConstraint(Sketcher.Constraint("Radius", 1, Q("10.500001 mm")))
sketch16.addConstraint(Sketcher.Constraint("DistanceX", 0, 1, 0, 2, Q("27.5 mm")))
sketch16.addConstraint(Sketcher.Constraint("DistanceY", 2, 1, 2, 2, Q("19.5 mm")))
sketch16.addConstraint(Sketcher.Constraint("DistanceX", 1, 3, -1, 1, Q("61.250001 mm")))
sketch16.addConstraint(Sketcher.Constraint("DistanceY", 1, 3, -1, 1, Q("38.749999 mm")))
pocket5 = body3.newObject("PartDesign::Pocket", "Pocket004")
pocket5.Profile = sketch16
pocket5.Type = "ThroughAll"

doc.recompute()
